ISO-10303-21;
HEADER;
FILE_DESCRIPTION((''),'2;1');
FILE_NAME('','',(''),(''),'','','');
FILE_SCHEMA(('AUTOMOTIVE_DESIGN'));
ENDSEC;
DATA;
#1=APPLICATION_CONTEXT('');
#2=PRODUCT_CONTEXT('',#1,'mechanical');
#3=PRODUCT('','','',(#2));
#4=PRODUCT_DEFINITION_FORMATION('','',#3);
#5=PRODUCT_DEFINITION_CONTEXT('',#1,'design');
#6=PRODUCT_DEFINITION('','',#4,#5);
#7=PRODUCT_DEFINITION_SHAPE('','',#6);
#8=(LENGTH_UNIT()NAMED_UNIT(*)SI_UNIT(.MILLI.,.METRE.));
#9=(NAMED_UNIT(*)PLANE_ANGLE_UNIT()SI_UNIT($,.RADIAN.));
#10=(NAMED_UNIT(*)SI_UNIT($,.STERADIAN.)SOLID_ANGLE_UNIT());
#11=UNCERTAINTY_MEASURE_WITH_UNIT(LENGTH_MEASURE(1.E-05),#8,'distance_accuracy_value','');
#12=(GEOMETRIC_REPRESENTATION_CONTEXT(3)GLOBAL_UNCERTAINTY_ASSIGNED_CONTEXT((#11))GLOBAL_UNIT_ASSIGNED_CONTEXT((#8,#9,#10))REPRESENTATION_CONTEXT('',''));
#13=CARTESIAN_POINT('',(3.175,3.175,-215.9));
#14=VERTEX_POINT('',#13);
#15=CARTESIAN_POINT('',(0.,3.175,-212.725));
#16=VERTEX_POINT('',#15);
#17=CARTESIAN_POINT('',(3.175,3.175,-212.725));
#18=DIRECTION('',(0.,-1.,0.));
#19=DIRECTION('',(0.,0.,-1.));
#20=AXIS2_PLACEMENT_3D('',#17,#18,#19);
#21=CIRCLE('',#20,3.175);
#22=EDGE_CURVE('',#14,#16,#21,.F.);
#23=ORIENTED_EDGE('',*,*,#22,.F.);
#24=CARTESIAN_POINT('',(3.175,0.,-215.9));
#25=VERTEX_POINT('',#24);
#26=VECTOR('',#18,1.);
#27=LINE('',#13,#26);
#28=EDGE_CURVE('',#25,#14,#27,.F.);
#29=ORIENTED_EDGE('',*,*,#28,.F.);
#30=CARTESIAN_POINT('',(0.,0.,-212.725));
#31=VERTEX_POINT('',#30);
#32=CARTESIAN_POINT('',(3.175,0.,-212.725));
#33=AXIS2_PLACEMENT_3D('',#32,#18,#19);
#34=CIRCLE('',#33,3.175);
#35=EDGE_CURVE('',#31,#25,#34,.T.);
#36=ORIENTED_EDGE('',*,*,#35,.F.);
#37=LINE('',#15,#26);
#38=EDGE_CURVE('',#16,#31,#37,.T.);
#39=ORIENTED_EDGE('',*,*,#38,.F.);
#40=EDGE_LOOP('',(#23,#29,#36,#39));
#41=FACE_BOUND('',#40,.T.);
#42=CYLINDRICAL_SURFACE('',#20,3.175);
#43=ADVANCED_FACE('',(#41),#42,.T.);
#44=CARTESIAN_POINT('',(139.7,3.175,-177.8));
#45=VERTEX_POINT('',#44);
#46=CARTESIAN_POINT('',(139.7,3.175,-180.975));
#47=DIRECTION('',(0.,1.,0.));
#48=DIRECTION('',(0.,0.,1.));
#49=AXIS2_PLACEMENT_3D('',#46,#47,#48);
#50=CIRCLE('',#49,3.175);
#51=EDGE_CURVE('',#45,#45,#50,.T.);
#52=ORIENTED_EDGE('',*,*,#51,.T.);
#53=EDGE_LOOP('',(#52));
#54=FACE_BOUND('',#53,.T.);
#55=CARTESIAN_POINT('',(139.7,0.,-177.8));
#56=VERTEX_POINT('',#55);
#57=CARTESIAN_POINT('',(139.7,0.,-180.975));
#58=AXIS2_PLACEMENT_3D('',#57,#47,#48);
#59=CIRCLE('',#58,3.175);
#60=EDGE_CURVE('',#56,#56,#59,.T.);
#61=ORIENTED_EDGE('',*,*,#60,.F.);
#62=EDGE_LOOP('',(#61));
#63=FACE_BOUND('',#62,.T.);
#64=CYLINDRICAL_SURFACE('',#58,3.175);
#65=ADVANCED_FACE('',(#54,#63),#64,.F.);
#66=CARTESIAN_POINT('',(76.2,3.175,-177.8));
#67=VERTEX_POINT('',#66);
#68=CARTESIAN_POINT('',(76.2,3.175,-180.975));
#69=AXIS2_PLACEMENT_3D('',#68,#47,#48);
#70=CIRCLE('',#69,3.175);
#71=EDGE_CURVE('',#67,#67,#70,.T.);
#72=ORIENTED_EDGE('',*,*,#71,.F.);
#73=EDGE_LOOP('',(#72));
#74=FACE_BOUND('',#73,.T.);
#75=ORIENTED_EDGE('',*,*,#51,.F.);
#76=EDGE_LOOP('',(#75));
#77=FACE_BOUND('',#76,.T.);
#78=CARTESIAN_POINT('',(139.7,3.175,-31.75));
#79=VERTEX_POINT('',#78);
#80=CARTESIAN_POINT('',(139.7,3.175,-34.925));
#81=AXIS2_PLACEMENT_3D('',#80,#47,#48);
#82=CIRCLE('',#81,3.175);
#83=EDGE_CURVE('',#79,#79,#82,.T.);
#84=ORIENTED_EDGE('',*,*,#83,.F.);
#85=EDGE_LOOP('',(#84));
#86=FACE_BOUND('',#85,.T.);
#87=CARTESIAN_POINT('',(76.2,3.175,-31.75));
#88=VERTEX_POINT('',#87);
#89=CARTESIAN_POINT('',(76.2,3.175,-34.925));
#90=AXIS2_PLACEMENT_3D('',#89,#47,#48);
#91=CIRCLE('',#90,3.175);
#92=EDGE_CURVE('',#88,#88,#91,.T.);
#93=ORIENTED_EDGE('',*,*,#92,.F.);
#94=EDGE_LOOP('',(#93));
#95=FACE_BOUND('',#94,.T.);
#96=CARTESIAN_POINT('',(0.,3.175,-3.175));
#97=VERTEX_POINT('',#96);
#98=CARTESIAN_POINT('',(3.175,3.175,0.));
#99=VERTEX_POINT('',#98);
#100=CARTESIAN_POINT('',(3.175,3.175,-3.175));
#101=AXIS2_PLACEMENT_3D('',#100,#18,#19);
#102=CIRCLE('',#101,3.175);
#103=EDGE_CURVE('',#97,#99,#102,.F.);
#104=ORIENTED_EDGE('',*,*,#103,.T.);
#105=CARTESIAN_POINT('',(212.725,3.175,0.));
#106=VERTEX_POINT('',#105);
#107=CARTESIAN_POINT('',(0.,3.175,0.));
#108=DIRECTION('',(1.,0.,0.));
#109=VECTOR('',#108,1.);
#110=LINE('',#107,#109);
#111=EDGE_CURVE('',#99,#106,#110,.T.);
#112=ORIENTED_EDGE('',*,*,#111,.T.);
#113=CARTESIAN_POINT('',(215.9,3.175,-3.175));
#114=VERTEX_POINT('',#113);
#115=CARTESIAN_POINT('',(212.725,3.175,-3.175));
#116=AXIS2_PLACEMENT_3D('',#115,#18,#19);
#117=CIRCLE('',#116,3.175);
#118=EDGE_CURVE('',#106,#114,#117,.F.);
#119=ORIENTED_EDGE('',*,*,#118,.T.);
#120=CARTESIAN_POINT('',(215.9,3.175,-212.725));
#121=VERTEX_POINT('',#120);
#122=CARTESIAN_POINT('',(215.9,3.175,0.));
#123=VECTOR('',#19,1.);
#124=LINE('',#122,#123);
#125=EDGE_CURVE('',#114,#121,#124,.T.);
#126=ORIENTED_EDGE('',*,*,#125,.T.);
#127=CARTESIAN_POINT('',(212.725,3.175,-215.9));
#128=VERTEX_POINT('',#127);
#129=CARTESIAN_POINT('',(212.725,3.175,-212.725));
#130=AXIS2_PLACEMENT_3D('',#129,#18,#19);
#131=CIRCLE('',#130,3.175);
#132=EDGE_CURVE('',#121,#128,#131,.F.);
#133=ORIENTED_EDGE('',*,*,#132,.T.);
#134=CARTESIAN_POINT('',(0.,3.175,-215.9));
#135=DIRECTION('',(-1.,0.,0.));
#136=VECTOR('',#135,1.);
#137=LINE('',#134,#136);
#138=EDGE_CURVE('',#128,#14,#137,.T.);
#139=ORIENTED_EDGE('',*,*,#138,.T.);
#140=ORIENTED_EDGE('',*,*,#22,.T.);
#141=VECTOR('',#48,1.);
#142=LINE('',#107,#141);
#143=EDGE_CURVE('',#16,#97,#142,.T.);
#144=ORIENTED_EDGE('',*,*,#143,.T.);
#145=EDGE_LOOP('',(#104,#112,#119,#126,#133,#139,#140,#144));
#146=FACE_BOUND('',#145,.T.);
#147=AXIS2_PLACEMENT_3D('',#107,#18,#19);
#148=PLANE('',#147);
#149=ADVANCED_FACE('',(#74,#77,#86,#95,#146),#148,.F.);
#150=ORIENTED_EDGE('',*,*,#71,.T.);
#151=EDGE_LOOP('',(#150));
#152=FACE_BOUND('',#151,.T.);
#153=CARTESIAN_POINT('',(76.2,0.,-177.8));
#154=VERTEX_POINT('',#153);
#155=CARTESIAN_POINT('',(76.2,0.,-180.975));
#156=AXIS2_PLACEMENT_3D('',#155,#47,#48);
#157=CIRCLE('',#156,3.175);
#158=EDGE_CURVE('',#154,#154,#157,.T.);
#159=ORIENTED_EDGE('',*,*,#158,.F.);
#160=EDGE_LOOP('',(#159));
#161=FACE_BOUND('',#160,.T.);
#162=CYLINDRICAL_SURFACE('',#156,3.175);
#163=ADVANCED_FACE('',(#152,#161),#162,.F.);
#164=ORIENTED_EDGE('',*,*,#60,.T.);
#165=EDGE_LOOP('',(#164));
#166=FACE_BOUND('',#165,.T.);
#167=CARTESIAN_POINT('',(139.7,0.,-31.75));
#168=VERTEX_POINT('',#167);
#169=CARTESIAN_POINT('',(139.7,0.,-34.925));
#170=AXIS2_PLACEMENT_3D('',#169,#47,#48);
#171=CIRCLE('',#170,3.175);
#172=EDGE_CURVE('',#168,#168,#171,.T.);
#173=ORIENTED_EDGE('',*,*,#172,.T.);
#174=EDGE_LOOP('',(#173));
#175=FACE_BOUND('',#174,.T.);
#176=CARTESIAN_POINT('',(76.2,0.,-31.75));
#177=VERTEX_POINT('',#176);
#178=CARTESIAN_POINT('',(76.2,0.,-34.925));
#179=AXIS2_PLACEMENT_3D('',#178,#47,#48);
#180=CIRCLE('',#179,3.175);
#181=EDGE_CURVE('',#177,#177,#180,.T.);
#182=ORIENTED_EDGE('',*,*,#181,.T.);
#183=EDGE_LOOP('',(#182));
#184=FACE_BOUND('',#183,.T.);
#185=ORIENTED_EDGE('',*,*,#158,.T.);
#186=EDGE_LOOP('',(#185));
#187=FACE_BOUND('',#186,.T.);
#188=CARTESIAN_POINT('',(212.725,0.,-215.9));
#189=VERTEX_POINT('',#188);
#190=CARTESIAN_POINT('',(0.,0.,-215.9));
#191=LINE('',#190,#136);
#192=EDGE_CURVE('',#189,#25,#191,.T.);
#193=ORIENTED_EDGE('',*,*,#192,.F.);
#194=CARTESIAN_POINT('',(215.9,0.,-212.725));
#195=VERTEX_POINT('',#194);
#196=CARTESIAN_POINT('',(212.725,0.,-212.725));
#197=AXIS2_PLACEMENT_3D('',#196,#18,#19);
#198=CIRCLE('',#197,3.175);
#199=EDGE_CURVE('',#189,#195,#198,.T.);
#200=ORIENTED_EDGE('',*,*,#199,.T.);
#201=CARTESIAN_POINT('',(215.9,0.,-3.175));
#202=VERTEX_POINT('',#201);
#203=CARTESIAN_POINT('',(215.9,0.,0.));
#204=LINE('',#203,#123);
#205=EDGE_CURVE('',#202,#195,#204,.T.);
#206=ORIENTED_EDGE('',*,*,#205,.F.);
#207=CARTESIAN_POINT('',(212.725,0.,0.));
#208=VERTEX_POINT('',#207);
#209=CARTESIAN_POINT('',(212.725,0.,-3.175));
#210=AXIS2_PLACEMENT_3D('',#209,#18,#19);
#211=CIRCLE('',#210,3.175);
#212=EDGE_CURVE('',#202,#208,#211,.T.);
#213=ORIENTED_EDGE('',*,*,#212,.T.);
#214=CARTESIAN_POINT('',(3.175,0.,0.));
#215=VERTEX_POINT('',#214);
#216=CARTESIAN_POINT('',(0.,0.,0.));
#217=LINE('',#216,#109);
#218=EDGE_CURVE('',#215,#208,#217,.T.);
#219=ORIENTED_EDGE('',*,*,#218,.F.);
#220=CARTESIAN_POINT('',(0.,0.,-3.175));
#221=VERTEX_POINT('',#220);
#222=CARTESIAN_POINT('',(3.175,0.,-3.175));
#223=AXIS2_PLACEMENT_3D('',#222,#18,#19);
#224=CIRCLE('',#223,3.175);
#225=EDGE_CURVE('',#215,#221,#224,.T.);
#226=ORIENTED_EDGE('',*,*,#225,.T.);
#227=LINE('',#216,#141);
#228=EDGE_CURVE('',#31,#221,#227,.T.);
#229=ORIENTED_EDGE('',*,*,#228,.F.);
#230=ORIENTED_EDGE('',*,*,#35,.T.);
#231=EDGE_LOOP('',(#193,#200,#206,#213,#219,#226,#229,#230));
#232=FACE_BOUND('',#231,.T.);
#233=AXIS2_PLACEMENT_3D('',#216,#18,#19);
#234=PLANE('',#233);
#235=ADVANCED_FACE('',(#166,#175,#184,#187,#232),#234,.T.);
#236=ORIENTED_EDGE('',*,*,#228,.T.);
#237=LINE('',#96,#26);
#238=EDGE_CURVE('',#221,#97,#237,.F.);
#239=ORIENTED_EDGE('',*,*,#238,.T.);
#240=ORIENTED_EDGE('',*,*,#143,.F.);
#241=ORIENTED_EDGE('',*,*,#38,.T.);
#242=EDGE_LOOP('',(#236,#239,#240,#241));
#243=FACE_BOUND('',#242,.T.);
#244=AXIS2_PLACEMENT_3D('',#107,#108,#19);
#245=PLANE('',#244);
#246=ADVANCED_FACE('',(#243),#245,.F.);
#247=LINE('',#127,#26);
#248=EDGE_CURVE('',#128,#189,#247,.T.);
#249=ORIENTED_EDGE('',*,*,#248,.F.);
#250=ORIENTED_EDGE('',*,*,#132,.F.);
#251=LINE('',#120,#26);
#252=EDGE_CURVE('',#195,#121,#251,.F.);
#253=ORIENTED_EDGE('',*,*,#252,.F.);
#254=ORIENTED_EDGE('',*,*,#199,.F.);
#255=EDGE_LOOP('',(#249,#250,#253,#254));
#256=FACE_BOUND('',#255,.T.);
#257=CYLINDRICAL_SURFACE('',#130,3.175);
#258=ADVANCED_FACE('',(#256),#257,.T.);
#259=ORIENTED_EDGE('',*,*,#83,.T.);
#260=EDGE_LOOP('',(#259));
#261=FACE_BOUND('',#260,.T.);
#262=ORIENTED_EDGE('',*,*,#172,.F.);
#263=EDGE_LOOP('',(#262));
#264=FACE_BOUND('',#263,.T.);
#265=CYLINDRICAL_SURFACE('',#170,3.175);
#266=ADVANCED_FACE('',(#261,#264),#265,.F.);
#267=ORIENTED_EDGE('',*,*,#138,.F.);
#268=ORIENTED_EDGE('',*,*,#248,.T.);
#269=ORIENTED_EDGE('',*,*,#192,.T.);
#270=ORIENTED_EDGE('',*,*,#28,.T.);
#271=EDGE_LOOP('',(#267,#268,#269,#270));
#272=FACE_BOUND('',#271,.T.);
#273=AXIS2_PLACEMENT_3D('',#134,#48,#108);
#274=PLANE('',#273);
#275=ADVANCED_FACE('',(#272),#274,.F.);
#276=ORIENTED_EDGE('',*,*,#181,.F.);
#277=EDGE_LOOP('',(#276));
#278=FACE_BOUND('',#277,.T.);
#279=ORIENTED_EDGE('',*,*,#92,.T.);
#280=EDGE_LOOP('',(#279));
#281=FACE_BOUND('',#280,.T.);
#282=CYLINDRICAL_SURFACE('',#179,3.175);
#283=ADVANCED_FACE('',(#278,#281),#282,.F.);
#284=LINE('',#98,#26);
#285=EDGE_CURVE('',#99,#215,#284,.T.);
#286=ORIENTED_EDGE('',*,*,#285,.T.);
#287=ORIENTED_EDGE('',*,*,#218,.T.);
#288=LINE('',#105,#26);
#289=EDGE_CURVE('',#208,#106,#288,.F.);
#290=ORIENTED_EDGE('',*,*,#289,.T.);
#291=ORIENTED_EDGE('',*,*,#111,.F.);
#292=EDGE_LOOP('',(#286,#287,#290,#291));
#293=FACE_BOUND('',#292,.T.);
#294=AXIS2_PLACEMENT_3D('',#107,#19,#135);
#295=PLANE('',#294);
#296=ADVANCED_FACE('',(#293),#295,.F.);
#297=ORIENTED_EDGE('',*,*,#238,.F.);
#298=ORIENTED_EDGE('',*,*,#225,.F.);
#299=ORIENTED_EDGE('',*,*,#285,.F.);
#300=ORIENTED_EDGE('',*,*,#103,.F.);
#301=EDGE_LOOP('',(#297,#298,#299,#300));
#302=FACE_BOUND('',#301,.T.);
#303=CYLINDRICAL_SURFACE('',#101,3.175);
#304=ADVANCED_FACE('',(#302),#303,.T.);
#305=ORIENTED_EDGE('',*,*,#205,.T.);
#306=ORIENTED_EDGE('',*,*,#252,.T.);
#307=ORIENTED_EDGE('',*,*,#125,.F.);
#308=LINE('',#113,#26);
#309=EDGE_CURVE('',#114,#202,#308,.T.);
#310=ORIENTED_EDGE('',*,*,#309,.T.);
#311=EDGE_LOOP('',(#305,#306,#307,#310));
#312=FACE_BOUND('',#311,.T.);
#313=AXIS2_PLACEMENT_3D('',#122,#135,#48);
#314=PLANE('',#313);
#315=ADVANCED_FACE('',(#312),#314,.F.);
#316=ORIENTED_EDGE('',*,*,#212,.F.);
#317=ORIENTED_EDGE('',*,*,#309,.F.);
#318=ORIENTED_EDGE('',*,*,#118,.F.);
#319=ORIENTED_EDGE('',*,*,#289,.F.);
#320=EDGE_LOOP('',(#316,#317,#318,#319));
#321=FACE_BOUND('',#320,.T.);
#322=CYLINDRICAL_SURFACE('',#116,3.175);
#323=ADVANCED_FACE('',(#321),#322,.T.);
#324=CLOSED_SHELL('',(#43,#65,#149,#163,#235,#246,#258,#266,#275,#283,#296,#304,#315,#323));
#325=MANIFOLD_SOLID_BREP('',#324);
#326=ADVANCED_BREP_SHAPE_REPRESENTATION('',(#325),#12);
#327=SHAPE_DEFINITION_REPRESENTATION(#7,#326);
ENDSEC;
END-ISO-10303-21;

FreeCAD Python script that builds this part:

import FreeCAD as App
import Part
import Sketcher
from FreeCAD import Vector
Q = App.Units.Quantity


def edges_at(feature, points):
    """Names of the edges that pass closest to the given points."""
    edges = feature.Shape.Edges
    near = lambda p: min(range(len(edges)), key=lambda i: edges[i].distToShape(Part.Vertex(*p))[0])
    return sorted({f"Edge{near(p) + 1}" for p in points})


def add_polygon(sketch, points):
    """Adds a closed chain of lines whose ends are joined by coincident constraints."""
    first, n = sketch.GeometryCount, len(points)
    for a, b in zip(points, points[1:] + points[:1]):
        sketch.addGeometry(Part.LineSegment(App.Vector(*a, 0), App.Vector(*b, 0)), False)
    for i in range(n):
        sketch.addConstraint(Sketcher.Constraint("Coincident", first + i, 2, first + (i + 1) % n, 1))

doc = App.newDocument("Part")
body = doc.addObject("PartDesign::Body", "Body")

# Sketch on XZ plane
sketch1 = body.newObject("Sketcher::SketchObject", "Sketch")
sketch1.AttachmentSupport = (doc.getObject("XZ_Plane"), [""])
sketch1.MapMode = "FlatFace"
add_polygon(sketch1, [(0, -216), (0, 0), (216, 0), (216, -216)])  # lines 0-3
sketch1.addConstraint([
    Sketcher.Constraint("Vertical", 0),
    Sketcher.Constraint("Horizontal", 1),
    Sketcher.Constraint("Vertical", 2),
    Sketcher.Constraint("Horizontal", 3),
    Sketcher.Constraint("Coincident", 0, 2, -1, 1),
    Sketcher.Constraint("Equal", 3, 0),
    Sketcher.Constraint("DistanceX", 1, 1, 1, 2, Q("8.5 in")),
])
pad1 = body.newObject("PartDesign::Pad", "Pad")
pad1.Profile = sketch1
pad1.Length = Q("0.125 in")
pad1.Reversed = True
doc.recompute()

fillet = body.newObject("PartDesign::Fillet", "Fillet")
fillet.Base = (pad1, edges_at(pad1, [
    (0, 1.587, -215.9),
    (215.9, 1.587, -215.9),
    (215.9, 1.587, 0),
    (0, 1.587, 0),
]))
fillet.Radius = Q("0.125 in")

# Sketch on XZ plane
sketch2 = body.newObject("Sketcher::SketchObject", "Sketch001")
sketch2.AttachmentSupport = (doc.getObject("XZ_Plane"), [""])
sketch2.MapMode = "FlatFace"
sketch2.AttachmentOffset = App.Placement(Vector(0, 0, -0.125 * 25.4), App.Rotation())
sketch2.addGeometry([
    Part.Circle(Vector(76.2, -181, 0), Vector(0, 0, 1), 3.2),
    Part.Circle(Vector(139.7, -181, 0), Vector(0, 0, 1), 3.2),
    Part.Circle(Vector(139.7, -34.9, 0), Vector(0, 0, 1), 3.2),
    Part.Circle(Vector(76.2, -34.9, 0), Vector(0, 0, 1), 3.2),
], False)
sketch2.addConstraint([
    Sketcher.Constraint("Equal", 0, 1),
    Sketcher.Constraint("Equal", 1, 2),
    Sketcher.Constraint("Equal", 2, 3),
    Sketcher.Constraint("Horizontal", 0, 3, 1, 3),
    Sketcher.Constraint("Horizontal", 2, 3, 3, 3),
    Sketcher.Constraint("Vertical", 1, 3, 2, 3),
    Sketcher.Constraint("Vertical", 0, 3, 3, 3),
    Sketcher.Constraint("Diameter", 0, Q("0.25 in")),
    Sketcher.Constraint("DistanceX", -1, 1, 0, 3, Q("3 in")),
    Sketcher.Constraint("DistanceX", -1, 1, 1, 3, Q("5.5 in")),
    Sketcher.Constraint("DistanceY", 1, 3, 2, 3, Q("5.75 in")),
    Sketcher.Constraint("DistanceY", 0, 3, -1, 1, Q("7.125 in")),
])
pocket1 = body.newObject("PartDesign::Pocket", "Pocket")
pocket1.Profile = sketch2
pocket1.Type = "ThroughAll"
pocket1.Reversed = True

doc.recompute()
